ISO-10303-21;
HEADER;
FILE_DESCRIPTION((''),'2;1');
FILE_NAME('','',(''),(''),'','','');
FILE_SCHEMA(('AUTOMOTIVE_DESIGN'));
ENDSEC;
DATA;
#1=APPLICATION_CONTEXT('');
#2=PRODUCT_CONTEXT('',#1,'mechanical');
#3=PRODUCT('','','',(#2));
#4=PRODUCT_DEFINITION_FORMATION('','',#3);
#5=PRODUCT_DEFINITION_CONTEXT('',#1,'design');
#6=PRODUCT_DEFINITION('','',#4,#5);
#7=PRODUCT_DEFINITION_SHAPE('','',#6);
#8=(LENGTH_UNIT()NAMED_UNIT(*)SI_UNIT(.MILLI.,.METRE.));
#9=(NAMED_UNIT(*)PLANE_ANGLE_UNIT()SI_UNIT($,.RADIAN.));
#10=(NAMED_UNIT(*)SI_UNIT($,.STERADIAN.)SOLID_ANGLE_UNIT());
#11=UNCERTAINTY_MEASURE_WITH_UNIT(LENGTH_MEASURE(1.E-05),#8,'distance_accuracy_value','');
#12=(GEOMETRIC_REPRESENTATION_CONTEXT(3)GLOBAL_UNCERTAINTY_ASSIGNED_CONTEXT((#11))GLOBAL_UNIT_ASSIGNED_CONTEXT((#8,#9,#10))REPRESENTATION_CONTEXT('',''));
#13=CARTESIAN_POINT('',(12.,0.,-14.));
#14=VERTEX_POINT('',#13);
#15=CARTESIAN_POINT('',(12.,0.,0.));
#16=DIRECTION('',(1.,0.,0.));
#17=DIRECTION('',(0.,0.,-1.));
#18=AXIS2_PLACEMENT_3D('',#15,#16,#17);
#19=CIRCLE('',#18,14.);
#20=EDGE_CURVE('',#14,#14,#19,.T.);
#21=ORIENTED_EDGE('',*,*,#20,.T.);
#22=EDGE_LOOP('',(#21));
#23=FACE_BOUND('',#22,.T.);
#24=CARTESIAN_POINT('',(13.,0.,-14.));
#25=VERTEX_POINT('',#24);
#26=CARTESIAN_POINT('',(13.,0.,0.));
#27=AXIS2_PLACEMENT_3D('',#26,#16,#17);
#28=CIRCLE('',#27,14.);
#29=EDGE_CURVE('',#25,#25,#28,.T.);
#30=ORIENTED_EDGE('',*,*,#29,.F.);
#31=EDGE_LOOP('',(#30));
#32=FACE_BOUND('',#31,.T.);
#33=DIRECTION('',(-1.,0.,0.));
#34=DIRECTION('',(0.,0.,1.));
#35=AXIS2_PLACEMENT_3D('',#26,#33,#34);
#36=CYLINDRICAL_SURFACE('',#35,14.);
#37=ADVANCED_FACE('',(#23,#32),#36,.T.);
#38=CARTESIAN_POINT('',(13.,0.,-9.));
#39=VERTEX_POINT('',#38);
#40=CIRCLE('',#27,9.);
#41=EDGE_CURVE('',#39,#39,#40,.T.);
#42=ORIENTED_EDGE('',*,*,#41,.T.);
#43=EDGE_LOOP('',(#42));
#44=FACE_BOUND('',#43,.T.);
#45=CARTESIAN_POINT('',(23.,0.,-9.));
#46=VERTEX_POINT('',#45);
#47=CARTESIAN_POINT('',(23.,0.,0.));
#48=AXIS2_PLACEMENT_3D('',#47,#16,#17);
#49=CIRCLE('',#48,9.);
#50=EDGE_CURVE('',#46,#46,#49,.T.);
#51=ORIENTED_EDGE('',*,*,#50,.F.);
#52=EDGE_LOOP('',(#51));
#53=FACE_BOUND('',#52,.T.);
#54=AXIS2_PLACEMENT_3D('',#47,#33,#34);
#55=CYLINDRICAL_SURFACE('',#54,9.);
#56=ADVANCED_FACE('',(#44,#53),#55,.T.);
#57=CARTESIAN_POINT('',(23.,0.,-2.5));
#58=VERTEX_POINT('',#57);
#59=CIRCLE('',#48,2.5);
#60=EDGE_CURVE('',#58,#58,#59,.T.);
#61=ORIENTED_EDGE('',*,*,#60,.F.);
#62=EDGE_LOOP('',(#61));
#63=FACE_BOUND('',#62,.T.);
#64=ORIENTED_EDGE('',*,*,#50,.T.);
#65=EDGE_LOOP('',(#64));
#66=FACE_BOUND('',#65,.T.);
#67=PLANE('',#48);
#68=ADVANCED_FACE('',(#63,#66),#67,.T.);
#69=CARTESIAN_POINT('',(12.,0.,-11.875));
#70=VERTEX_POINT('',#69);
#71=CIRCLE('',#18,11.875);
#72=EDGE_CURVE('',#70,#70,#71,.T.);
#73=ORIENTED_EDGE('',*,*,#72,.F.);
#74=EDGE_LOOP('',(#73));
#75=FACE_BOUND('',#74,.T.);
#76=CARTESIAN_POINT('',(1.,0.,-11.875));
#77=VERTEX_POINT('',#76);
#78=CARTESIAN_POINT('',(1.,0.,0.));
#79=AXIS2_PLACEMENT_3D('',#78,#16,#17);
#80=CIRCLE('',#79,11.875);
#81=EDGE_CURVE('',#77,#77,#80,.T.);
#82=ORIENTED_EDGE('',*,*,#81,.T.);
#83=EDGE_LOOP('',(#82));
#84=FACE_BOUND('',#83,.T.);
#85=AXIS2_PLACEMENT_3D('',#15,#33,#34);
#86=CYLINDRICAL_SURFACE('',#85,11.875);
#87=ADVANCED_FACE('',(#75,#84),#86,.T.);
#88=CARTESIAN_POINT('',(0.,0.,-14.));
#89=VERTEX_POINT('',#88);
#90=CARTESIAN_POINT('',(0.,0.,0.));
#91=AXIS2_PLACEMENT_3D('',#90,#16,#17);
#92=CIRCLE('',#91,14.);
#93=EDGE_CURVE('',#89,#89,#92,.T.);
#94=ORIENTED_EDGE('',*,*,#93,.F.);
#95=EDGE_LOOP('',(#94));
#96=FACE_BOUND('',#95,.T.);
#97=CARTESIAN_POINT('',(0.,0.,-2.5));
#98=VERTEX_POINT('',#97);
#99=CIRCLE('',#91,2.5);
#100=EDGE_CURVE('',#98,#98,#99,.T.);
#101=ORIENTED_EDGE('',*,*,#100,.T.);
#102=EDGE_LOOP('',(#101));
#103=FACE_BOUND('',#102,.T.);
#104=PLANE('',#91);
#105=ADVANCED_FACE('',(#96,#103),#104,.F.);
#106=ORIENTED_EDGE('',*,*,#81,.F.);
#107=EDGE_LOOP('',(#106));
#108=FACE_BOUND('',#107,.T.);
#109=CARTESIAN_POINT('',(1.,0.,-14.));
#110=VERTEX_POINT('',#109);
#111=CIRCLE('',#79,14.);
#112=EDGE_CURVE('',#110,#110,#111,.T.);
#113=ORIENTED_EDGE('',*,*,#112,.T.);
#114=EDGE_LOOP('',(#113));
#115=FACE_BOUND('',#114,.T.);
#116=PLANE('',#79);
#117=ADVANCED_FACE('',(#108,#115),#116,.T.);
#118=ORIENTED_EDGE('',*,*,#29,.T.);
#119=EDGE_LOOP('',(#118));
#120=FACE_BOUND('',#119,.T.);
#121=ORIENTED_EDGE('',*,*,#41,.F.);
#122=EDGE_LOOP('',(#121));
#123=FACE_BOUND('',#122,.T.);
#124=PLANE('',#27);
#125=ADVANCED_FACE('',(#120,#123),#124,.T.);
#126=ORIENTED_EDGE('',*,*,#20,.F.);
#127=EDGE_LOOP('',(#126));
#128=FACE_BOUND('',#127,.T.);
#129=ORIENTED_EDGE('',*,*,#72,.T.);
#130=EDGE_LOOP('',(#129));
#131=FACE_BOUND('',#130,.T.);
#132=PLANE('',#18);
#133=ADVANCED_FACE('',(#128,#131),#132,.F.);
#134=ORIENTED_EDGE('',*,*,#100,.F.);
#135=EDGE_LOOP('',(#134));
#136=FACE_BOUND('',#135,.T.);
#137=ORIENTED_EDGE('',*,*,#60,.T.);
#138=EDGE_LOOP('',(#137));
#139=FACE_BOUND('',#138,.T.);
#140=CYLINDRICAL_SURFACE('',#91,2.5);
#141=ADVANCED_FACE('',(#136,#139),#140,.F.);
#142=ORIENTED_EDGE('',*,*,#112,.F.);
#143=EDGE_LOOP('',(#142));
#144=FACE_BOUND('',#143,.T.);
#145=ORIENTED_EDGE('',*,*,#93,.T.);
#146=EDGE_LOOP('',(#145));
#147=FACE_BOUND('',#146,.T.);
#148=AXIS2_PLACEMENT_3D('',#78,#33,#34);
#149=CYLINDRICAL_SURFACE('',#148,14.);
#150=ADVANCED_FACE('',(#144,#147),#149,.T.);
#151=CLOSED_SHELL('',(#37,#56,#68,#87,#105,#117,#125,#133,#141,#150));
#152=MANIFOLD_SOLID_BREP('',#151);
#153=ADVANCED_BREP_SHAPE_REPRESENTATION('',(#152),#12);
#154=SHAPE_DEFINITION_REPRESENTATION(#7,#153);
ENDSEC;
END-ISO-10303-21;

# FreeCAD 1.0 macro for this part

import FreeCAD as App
import Part
import Sketcher
Q = App.Units.Quantity

doc = App.newDocument("Part")
body = doc.addObject("PartDesign::Body", "Body")

# Sketch on YZ plane
sketch1 = doc.addObject("Sketcher::SketchObject", "Sketch")
body.addObject(sketch1)
sketch1.AttachmentSupport = (doc.YZ_Plane, [""])
sketch1.MapMode = "FlatFace"
sketch1.addGeometry(Part.Circle(App.Vector(0, 0, 0), App.Vector(0, 0, 1), 14), False)
sketch1.addConstraint([
    Sketcher.Constraint("Coincident", 0, 3, -1, 1),
    Sketcher.Constraint("Diameter", 0, Q("28 mm")),
])
pad1 = doc.addObject("PartDesign::Pad", "Pad")
body.addObject(pad1)
pad1.Profile = sketch1
pad1.Length = 1

# Sketch on YZ plane
sketch2 = doc.addObject("Sketcher::SketchObject", "Sketch001")
body.addObject(sketch2)
sketch2.AttachmentSupport = (doc.YZ_Plane, [""])
sketch2.MapMode = "FlatFace"
sketch2.AttachmentOffset = App.Placement(App.Vector(0, 0, 1), App.Rotation())
sketch2.addGeometry(Part.Circle(App.Vector(0, 0, 0), App.Vector(0, 0, 1), 11.875), False)
sketch2.addConstraint([
    Sketcher.Constraint("Coincident", 0, 3, -1, 1),
    Sketcher.Constraint("Diameter", 0, Q("23.75 mm")),
])
pad2 = doc.addObject("PartDesign::Pad", "Pad001")
body.addObject(pad2)
pad2.Profile = sketch2
pad2.Length = 11

# Sketch on YZ plane
sketch3 = doc.addObject("Sketcher::SketchObject", "Sketch002")
body.addObject(sketch3)
sketch3.AttachmentSupport = (doc.YZ_Plane, [""])
sketch3.MapMode = "FlatFace"
sketch3.AttachmentOffset = App.Placement(App.Vector(0, 0, 12), App.Rotation())
sketch3.addGeometry(Part.Circle(App.Vector(0, 0, 0), App.Vector(0, 0, 1), 14), False)
sketch3.addConstraint([
    Sketcher.Constraint("Coincident", 0, 3, -1, 1),
    Sketcher.Constraint("Diameter", 0, Q("28 mm")),
])
pad3 = doc.addObject("PartDesign::Pad", "Pad002")
body.addObject(pad3)
pad3.Profile = sketch3
pad3.Length = 1

# Sketch on YZ plane
sketch4 = doc.addObject("Sketcher::SketchObject", "Sketch003")
body.addObject(sketch4)
sketch4.AttachmentSupport = (doc.YZ_Plane, [""])
sketch4.MapMode = "FlatFace"
sketch4.AttachmentOffset = App.Placement(App.Vector(0, 0, 13), App.Rotation())
sketch4.addGeometry(Part.Circle(App.Vector(0, 0, 0), App.Vector(0, 0, 1), 9), False)
sketch4.addConstraint([
    Sketcher.Constraint("Coincident", 0, 3, -1, 1),
    Sketcher.Constraint("Diameter", 0, Q("18 mm")),
])
pad4 = doc.addObject("PartDesign::Pad", "Pad003")
body.addObject(pad4)
pad4.Profile = sketch4
pad4.Length = 10

# Sketch on YZ plane
sketch5 = doc.addObject("Sketcher::SketchObject", "Sketch004")
body.addObject(sketch5)
sketch5.AttachmentSupport = (doc.YZ_Plane, [""])
sketch5.MapMode = "FlatFace"
sketch5.AttachmentOffset = App.Placement(App.Vector(0, 0, 23), App.Rotation())
sketch5.addGeometry(Part.Circle(App.Vector(0, 0, 0), App.Vector(0, 0, 1), 2.5), False)
sketch5.addConstraint([
    Sketcher.Constraint("Coincident", 0, 3, -1, 1),
    Sketcher.Constraint("Diameter", 0, Q("5 mm")),
])
pocket1 = doc.addObject("PartDesign::Pocket", "Pocket")
body.addObject(pocket1)
pocket1.Profile = sketch5
pocket1.Type = "ThroughAll"

doc.recompute()
